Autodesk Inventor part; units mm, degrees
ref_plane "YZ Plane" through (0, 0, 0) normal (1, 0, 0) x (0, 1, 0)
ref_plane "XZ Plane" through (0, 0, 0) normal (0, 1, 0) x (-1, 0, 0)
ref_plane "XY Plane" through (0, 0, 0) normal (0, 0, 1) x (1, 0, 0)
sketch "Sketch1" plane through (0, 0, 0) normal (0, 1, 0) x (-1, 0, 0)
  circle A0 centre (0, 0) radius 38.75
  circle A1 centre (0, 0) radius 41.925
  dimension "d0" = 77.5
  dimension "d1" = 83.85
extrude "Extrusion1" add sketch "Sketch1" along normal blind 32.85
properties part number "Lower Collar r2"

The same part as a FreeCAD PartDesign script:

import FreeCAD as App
import Part
import Sketcher

V = App.Vector
Q = App.Units.Quantity

doc = App.newDocument("Part")
params = doc.addObject("Spreadsheet::Sheet", "Params")
for row, (alias, value) in enumerate([
    ("sketch1_diameter", "77.5 mm"),
    ("sketch1_diameter2", "83.85 mm"),
    ("pad1_length", "32.85 mm"),
], start=1):
    params.set(f"A{row}", alias)
    params.set(f"B{row}", "=" + value)
    params.setAlias(f"B{row}", alias)

body = doc.addObject("PartDesign::Body", "Body")

# Sketch on XZ plane
sketch1 = body.newObject("Sketcher::SketchObject", "Sketch")
sketch1.AttachmentSupport = (doc.getObject("XZ_Plane"), [""])
sketch1.MapMode = "FlatFace"
sketch1.addGeometry(Part.Circle(V(0, 0, 0), V(0, 0, 1), 42), False)
sketch1.addGeometry(Part.Circle(V(0, 0, 0), V(0, 0, 1), 39), False)
sketch1.addConstraint(Sketcher.Constraint("Coincident", 0, 3, -1, 1))
sketch1.addConstraint(Sketcher.Constraint("Coincident", 1, 3, -1, 1))
sketch1.addConstraint(Sketcher.Constraint("Diameter", 1, Q("77.5 mm")))
sketch1.addConstraint(Sketcher.Constraint("Diameter", 0, Q("83.85 mm")))
sketch1.setExpression("Constraints[2]", "Params.sketch1_diameter")
sketch1.setExpression("Constraints[3]", "Params.sketch1_diameter2")
pad1 = body.newObject("PartDesign::Pad", "Pad")
pad1.Profile = sketch1
pad1.setExpression("Length", "Params.pad1_length")
pad1.Reversed = True

doc.recompute()
